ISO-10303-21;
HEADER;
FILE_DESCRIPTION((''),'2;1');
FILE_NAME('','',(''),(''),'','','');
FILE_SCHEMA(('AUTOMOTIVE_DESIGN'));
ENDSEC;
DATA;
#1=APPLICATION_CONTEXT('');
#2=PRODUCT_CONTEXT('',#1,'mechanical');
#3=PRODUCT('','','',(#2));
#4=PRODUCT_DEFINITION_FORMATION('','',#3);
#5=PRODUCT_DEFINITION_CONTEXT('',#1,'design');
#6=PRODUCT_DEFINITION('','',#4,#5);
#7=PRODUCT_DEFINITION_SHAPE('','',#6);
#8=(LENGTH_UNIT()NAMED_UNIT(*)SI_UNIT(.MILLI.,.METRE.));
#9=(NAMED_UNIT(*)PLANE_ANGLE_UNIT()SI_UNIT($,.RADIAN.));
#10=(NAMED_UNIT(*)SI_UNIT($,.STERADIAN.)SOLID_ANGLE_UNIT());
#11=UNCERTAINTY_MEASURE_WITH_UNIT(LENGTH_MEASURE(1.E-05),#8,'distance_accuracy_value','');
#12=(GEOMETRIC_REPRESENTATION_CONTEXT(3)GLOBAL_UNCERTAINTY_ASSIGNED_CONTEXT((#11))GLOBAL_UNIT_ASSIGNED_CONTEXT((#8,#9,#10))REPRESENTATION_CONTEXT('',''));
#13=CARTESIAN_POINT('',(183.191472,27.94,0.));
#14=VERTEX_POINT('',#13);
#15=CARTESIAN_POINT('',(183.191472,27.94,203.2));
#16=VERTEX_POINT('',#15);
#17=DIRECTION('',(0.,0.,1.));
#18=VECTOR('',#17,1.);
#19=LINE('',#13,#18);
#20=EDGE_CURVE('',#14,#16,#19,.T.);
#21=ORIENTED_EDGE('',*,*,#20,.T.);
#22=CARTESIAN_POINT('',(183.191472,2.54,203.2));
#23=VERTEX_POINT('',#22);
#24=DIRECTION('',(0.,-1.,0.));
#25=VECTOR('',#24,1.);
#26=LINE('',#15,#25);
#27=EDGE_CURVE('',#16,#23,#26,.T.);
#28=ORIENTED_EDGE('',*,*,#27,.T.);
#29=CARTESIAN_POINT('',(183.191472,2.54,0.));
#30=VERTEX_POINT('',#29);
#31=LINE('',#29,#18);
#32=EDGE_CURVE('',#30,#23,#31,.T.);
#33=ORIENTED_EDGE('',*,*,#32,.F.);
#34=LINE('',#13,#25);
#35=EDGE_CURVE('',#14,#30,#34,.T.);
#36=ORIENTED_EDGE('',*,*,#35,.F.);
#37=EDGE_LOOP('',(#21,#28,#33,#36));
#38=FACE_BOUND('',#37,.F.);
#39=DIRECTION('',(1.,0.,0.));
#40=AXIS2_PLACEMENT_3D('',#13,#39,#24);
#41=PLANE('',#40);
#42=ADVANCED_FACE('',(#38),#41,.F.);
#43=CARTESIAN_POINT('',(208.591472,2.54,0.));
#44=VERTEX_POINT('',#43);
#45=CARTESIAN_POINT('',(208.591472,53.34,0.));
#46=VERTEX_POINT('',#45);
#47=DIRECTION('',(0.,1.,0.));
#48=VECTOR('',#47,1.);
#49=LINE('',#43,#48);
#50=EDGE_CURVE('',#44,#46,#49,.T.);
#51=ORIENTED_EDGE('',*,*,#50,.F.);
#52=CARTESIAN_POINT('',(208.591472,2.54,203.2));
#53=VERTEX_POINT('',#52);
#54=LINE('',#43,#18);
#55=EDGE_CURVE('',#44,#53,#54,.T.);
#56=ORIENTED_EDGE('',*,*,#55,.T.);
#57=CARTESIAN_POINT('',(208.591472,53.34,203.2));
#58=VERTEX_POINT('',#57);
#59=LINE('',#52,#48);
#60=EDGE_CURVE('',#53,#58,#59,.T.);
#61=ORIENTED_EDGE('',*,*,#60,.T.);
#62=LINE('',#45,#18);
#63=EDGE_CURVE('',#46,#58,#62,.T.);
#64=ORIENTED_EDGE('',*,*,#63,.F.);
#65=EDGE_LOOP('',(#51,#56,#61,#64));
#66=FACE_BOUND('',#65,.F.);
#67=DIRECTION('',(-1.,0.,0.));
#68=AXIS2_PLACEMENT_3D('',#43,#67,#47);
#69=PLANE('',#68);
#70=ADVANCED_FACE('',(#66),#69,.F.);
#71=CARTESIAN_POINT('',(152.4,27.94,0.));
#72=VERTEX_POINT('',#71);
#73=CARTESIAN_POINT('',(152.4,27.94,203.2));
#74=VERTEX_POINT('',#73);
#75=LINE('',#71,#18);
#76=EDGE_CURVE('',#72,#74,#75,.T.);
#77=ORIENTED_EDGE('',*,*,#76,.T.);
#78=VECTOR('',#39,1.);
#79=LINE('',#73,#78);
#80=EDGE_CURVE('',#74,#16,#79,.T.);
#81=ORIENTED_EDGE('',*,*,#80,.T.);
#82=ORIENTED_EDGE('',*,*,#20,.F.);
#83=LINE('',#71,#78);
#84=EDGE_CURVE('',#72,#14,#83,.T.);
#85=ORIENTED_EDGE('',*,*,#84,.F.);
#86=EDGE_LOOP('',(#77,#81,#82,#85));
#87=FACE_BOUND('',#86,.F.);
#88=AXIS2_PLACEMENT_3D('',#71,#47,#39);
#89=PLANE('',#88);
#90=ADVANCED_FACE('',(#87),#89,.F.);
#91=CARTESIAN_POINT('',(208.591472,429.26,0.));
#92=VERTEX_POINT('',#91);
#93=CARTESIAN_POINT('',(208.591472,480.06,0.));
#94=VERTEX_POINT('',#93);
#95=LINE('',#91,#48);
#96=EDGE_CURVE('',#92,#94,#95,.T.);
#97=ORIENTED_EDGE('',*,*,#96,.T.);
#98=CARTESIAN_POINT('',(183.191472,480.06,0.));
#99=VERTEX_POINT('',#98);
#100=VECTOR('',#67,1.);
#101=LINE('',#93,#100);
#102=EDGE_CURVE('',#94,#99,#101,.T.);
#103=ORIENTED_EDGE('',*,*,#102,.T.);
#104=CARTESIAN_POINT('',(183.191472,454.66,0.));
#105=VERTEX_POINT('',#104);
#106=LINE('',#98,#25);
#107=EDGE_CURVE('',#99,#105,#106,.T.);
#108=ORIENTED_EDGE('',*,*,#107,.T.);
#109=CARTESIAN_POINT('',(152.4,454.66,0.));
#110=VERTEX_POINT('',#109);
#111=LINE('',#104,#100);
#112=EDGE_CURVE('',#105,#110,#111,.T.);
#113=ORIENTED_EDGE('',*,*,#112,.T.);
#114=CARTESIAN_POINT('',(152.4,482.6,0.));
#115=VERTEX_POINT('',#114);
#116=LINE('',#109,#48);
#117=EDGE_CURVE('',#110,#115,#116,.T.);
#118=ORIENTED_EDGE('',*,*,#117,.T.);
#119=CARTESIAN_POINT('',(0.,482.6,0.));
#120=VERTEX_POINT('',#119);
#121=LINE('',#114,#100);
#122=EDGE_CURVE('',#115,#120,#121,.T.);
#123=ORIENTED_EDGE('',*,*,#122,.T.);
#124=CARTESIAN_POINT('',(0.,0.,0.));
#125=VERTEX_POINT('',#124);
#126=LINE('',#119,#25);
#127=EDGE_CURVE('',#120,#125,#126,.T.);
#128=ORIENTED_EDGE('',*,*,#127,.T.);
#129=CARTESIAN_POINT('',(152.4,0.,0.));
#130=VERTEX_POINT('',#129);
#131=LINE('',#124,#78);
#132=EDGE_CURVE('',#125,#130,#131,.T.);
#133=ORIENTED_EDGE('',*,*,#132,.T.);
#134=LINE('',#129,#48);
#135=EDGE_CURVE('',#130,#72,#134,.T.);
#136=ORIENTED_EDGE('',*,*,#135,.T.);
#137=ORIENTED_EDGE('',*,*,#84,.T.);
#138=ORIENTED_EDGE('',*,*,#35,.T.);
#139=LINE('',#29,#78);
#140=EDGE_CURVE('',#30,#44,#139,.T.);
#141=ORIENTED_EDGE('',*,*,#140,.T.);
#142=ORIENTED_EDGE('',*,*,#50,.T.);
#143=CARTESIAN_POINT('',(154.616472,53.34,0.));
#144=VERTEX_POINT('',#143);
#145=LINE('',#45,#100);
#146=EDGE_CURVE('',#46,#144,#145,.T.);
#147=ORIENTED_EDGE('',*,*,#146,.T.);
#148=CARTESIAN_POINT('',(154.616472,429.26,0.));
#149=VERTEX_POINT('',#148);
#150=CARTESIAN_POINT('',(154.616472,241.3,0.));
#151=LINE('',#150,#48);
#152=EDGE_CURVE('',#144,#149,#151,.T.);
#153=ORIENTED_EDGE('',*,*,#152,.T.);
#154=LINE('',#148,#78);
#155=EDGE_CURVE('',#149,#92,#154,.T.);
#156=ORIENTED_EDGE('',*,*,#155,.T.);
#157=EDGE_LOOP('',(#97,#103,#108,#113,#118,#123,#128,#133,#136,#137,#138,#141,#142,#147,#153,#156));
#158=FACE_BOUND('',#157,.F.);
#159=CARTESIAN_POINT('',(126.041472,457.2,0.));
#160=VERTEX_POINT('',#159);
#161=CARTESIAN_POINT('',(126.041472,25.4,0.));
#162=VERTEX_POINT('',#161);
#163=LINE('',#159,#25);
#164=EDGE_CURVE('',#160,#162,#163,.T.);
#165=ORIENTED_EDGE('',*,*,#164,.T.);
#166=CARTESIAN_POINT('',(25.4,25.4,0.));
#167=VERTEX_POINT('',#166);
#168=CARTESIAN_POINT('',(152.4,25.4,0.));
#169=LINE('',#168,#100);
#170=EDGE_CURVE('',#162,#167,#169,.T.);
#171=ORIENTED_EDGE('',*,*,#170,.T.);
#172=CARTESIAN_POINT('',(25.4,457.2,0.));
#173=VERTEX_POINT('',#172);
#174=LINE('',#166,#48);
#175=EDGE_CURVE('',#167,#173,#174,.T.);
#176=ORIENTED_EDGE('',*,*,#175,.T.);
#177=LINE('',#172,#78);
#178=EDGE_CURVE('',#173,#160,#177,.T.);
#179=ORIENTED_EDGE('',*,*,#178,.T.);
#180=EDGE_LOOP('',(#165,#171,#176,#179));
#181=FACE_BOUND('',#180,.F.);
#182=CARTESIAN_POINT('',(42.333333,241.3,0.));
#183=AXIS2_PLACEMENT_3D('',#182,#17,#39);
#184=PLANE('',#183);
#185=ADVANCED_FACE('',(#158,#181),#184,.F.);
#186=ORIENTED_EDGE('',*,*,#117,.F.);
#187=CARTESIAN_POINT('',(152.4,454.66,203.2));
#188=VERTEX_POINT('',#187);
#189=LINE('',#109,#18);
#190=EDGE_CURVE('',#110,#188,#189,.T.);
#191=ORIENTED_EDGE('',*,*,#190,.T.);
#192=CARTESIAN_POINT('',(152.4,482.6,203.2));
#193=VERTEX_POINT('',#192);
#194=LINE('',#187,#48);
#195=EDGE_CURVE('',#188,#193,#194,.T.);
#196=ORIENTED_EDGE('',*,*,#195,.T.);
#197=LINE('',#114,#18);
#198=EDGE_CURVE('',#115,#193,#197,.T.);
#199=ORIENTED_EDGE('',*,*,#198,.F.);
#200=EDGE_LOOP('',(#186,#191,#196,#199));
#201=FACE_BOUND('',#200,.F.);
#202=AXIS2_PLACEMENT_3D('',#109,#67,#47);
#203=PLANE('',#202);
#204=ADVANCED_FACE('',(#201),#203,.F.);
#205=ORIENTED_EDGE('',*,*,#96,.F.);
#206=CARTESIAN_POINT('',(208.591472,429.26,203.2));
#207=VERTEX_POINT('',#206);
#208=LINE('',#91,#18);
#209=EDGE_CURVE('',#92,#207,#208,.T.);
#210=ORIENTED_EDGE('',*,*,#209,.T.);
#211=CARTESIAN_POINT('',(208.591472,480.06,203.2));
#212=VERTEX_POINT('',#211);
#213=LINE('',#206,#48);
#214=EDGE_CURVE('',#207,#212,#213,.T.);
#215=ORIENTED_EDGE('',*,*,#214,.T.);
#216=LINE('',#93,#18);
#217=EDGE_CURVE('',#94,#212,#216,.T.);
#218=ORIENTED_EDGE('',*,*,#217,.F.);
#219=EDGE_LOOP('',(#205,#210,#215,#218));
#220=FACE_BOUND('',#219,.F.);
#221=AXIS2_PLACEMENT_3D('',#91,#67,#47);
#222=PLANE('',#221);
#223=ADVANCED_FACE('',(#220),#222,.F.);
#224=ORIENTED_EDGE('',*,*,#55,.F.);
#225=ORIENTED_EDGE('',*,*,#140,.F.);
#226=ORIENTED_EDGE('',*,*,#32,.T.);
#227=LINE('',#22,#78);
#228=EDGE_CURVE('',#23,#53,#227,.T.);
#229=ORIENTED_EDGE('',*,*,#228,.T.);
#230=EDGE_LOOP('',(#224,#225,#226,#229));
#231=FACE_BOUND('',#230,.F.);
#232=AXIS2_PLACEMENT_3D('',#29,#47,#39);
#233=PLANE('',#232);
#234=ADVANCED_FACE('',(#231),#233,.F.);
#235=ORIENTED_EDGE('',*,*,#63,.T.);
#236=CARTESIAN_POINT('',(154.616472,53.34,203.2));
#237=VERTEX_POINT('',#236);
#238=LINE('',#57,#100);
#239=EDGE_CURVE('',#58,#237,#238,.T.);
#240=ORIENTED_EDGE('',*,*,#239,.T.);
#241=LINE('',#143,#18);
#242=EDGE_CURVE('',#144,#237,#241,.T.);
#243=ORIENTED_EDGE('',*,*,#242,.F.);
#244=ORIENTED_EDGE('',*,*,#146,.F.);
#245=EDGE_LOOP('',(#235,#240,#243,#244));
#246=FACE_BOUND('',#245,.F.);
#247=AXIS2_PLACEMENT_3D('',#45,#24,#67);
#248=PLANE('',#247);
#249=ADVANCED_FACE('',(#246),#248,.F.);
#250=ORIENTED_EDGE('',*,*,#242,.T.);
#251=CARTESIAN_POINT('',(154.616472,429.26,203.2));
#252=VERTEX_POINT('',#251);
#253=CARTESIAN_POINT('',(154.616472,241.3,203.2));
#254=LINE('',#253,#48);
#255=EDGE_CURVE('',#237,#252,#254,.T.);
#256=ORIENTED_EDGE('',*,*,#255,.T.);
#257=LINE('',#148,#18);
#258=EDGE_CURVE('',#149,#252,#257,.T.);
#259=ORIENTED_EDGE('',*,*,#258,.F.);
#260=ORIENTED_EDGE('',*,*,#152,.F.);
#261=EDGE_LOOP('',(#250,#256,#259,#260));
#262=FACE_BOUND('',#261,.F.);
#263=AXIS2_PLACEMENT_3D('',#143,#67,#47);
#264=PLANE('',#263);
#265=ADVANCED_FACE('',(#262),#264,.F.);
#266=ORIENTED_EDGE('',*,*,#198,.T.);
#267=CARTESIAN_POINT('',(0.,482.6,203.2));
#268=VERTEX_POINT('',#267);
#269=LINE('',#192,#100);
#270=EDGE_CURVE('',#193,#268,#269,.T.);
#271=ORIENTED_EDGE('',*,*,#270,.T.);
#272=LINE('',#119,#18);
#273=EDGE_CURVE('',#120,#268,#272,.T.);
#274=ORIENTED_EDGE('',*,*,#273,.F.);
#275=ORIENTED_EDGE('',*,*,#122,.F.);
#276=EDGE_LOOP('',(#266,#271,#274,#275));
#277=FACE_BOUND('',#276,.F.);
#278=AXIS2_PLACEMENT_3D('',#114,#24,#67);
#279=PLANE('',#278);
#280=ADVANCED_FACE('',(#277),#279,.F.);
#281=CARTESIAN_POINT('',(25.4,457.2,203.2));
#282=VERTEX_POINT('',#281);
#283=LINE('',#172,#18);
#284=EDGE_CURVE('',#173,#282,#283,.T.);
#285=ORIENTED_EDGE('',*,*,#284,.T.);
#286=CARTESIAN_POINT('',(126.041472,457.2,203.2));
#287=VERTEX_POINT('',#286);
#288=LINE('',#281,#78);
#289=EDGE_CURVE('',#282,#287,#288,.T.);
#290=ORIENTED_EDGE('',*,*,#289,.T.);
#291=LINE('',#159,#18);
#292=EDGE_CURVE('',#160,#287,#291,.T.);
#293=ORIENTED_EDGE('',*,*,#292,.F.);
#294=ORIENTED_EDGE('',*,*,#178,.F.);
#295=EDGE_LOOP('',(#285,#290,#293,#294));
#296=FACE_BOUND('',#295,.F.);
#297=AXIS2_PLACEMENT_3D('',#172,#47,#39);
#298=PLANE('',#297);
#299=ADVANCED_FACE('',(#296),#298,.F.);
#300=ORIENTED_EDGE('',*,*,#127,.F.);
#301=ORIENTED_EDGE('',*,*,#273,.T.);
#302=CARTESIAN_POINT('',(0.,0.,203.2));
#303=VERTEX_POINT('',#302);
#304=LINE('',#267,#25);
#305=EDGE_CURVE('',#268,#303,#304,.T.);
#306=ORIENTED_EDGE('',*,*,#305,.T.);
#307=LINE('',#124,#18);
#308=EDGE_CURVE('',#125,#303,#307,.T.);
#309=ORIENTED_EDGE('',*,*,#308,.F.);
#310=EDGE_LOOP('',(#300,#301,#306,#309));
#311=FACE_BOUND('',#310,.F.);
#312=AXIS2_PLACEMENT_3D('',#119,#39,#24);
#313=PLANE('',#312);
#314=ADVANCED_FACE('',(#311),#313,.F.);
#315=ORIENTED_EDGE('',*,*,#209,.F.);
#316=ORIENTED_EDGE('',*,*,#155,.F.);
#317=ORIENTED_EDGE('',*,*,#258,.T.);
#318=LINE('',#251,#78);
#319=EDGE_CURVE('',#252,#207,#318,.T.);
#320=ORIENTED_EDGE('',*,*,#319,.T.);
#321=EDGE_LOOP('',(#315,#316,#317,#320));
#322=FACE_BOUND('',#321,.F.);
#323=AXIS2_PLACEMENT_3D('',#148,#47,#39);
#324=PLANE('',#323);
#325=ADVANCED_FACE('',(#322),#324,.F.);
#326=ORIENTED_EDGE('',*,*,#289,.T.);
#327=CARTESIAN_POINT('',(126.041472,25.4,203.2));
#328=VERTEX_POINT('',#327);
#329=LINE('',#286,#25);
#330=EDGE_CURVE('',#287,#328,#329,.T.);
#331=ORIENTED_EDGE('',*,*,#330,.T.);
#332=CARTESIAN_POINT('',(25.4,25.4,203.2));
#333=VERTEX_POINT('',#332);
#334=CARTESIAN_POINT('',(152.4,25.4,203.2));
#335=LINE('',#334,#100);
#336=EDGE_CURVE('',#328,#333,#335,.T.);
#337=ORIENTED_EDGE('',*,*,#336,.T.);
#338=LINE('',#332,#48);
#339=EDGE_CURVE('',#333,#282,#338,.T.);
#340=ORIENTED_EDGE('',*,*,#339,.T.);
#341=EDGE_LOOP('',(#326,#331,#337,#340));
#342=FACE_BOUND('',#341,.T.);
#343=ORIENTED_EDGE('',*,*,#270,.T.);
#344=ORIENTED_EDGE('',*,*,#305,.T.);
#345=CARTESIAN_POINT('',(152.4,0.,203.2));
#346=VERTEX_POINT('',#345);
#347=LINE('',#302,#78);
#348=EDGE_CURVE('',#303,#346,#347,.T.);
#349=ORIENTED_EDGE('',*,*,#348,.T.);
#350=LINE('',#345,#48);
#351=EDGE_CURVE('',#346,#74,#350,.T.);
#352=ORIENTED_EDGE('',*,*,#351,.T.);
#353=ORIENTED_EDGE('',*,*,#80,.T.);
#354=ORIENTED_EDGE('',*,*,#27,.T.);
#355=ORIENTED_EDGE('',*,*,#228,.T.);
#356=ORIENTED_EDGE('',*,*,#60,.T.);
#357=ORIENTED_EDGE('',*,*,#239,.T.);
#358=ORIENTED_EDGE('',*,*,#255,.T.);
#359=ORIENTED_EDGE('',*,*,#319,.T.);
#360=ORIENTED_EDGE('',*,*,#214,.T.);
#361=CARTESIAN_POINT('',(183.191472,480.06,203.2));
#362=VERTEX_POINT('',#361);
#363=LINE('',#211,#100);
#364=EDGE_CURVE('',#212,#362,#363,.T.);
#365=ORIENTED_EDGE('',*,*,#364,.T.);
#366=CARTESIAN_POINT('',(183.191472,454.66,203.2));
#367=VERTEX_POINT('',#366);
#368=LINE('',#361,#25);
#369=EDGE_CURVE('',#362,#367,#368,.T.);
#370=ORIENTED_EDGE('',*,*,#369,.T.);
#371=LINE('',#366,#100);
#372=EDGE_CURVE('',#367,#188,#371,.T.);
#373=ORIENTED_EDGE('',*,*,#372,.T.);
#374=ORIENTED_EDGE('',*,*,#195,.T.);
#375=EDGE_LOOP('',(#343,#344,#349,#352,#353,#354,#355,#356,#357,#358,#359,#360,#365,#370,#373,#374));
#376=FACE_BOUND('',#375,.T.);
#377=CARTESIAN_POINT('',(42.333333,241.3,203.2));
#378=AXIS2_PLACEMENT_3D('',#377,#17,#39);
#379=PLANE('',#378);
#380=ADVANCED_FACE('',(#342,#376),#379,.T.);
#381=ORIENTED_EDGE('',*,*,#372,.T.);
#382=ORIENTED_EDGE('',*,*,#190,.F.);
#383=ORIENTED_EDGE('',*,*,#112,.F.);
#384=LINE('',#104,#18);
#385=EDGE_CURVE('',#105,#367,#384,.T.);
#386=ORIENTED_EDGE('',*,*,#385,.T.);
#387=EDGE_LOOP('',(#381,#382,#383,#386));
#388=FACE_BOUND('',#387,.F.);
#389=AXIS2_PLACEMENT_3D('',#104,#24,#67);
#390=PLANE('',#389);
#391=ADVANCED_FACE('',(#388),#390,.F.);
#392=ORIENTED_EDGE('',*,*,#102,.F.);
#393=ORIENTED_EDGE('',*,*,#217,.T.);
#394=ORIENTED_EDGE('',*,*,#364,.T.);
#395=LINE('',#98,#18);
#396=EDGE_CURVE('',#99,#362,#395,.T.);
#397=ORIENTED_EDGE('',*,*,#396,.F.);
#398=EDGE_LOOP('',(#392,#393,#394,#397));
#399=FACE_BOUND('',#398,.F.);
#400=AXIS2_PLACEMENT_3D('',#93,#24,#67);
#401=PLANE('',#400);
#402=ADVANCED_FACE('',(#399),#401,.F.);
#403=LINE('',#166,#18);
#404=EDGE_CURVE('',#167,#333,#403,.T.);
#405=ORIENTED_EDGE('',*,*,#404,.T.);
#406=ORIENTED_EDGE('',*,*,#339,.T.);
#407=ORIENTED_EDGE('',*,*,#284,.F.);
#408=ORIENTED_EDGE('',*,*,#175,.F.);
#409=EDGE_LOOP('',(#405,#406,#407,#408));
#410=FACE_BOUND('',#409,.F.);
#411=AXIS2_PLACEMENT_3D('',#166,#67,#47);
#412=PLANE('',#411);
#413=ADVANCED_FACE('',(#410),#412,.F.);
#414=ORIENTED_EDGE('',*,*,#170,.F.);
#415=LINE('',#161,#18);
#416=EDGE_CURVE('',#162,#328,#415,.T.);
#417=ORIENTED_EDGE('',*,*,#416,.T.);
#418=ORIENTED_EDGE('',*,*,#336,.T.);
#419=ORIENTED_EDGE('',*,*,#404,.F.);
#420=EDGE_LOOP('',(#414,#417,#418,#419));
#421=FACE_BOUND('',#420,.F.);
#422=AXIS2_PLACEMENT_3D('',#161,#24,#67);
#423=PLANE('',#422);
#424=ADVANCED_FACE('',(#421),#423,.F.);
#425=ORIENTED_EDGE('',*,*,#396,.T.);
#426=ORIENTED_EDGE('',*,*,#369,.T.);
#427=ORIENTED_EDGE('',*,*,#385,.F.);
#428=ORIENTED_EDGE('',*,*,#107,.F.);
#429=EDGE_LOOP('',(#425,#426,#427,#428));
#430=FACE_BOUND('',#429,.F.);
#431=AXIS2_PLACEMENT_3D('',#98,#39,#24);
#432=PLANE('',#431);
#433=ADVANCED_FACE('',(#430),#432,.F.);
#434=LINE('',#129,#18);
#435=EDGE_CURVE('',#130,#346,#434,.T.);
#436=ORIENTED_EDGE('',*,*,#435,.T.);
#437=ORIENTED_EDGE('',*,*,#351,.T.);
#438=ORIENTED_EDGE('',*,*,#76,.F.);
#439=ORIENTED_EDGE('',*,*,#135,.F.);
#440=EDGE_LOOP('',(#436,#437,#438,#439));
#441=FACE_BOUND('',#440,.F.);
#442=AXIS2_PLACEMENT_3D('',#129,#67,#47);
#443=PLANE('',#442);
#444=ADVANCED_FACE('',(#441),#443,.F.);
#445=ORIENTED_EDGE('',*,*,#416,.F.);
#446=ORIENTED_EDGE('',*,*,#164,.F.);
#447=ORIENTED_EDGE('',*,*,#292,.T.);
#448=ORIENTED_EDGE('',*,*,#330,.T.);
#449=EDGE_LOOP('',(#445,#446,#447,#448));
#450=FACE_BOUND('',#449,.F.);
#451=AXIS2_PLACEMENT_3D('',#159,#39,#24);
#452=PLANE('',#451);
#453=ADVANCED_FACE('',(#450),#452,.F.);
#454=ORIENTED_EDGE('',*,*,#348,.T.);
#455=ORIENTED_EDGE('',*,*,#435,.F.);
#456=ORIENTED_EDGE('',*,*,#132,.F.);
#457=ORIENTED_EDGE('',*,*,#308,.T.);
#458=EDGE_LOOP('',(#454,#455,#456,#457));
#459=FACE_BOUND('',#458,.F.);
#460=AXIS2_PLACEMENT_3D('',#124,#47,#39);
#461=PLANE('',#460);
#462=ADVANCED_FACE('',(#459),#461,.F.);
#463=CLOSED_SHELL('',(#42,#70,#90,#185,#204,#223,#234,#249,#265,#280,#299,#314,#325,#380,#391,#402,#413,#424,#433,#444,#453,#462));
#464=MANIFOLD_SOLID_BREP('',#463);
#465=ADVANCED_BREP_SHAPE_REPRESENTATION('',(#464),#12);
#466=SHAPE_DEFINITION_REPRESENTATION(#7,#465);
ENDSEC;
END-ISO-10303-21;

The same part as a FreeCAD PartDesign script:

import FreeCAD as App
import Part
import Sketcher
from FreeCAD import Vector
Q = App.Units.Quantity

doc = App.newDocument("Part")
body = doc.addObject("PartDesign::Body", "Body")

sketch1 = body.newObject("Sketcher::SketchObject", "Sketch")
sketch1.AttachmentSupport = (doc.getObject("XY_Plane"), [""])
sketch1.MapMode = "FlatFace"
sketch1.addGeometry([
    Part.LineSegment(Vector(0, 483, 0), Vector(0, 0, 0)),
    Part.LineSegment(Vector(0, 0, 0), Vector(152, 0, 0)),
    Part.LineSegment(Vector(152, 0, 0), Vector(152, 28, 0)),
    Part.LineSegment(Vector(152, 28, 0), Vector(183, 28, 0)),
    Part.LineSegment(Vector(183, 28, 0), Vector(183, 3, 0)),
    Part.LineSegment(Vector(183, 3, 0), Vector(209, 3, 0)),
    Part.LineSegment(Vector(209, 3, 0), Vector(209, 53, 0)),
    Part.LineSegment(Vector(209, 53, 0), Vector(155, 53, 0)),
    Part.LineSegment(Vector(155, 53, 0), Vector(155, 429, 0)),
    Part.LineSegment(Vector(155, 429, 0), Vector(209, 429, 0)),
    Part.LineSegment(Vector(209, 429, 0), Vector(209, 480, 0)),
    Part.LineSegment(Vector(209, 480, 0), Vector(183, 480, 0)),
    Part.LineSegment(Vector(183, 480, 0), Vector(183, 455, 0)),
    Part.LineSegment(Vector(183, 455, 0), Vector(152, 455, 0)),
    Part.LineSegment(Vector(152, 455, 0), Vector(152, 483, 0)),
    Part.LineSegment(Vector(152, 483, 0), Vector(0, 483, 0)),
    Part.LineSegment(Vector(126, 25, 0), Vector(25, 25, 0)),
    Part.LineSegment(Vector(25, 25, 0), Vector(25, 457, 0)),
    Part.LineSegment(Vector(25, 457, 0), Vector(126, 457, 0)),
    Part.LineSegment(Vector(126, 457, 0), Vector(126, 25, 0)),
], False)
sketch1.addConstraint([
    Sketcher.Constraint("Coincident", 0, 2, 1, 1),
    Sketcher.Constraint("Coincident", 1, 2, 2, 1),
    Sketcher.Constraint("Coincident", 2, 2, 3, 1),
    Sketcher.Constraint("Coincident", 3, 2, 4, 1),
    Sketcher.Constraint("Coincident", 4, 2, 5, 1),
    Sketcher.Constraint("Coincident", 5, 2, 6, 1),
    Sketcher.Constraint("Coincident", 6, 2, 7, 1),
    Sketcher.Constraint("Coincident", 7, 2, 8, 1),
    Sketcher.Constraint("Coincident", 8, 2, 9, 1),
    Sketcher.Constraint("Coincident", 9, 2, 10, 1),
    Sketcher.Constraint("Coincident", 10, 2, 11, 1),
    Sketcher.Constraint("Coincident", 11, 2, 12, 1),
    Sketcher.Constraint("Coincident", 12, 2, 13, 1),
    Sketcher.Constraint("Coincident", 13, 2, 14, 1),
    Sketcher.Constraint("Coincident", 14, 2, 15, 1),
    Sketcher.Constraint("Coincident", 15, 2, 0, 1),
    Sketcher.Constraint("Coincident", 16, 2, 17, 1),
    Sketcher.Constraint("Coincident", 17, 2, 18, 1),
    Sketcher.Constraint("Coincident", 18, 2, 19, 1),
    Sketcher.Constraint("Coincident", 19, 2, 16, 1),
    Sketcher.Constraint("Vertical", 0),
    Sketcher.Constraint("Horizontal", 1),
    Sketcher.Constraint("Vertical", 2),
    Sketcher.Constraint("Horizontal", 3),
    Sketcher.Constraint("Vertical", 4),
    Sketcher.Constraint("Horizontal", 5),
    Sketcher.Constraint("Vertical", 6),
    Sketcher.Constraint("Horizontal", 7),
    Sketcher.Constraint("Vertical", 8),
    Sketcher.Constraint("Horizontal", 9),
    Sketcher.Constraint("Vertical", 10),
    Sketcher.Constraint("Horizontal", 11),
    Sketcher.Constraint("Vertical", 12),
    Sketcher.Constraint("Horizontal", 13),
    Sketcher.Constraint("Vertical", 14),
    Sketcher.Constraint("Horizontal", 15),
    Sketcher.Constraint("Horizontal", 16),
    Sketcher.Constraint("Vertical", 17),
    Sketcher.Constraint("Horizontal", 18),
    Sketcher.Constraint("Vertical", 19),
    Sketcher.Constraint("Coincident", 0, 2, -1, 1),
    Sketcher.Constraint("Vertical", 6, 2, 9, 2),
    Sketcher.Constraint("Vertical", 4, 2, 11, 2),
    Sketcher.Constraint("Vertical", 2, 2, 13, 2),
    Sketcher.Constraint("Equal", 11, 4),
    Sketcher.Constraint("Equal", 6, 10),
    Sketcher.Constraint("Equal", 4, 12),
    Sketcher.Constraint("Equal", 2, 14),
    Sketcher.Constraint("DistanceX", 1, 1, 1, 2, Q("6 in")),
    Sketcher.Constraint("DistanceX", 5, 1, 5, 2, Q("1 in")),
    Sketcher.Constraint("DistanceY", 0, 2, 0, 1, Q("19 in")),
    Sketcher.Constraint("DistanceY", 6, 1, 6, 2, Q("2 in")),
    Sketcher.Constraint("DistanceY", 17, 1, 17, 2, Q("17 in")),
    Sketcher.Constraint("DistanceY", 2, 1, 2, 2, Q("1.1 in")),
    Sketcher.Constraint("DistanceX", -1, 1, 16, 2, Q("1 in")),
    Sketcher.Constraint("DistanceY", -1, 1, 16, 2, Q("1 in")),
    Sketcher.Constraint("DistanceX", 7, 2, 7, 1, Q("2.125 in")),
    Sketcher.Constraint("DistanceX", 18, 2, 12, 2, Q("2.25 in")),
    Sketcher.Constraint("DistanceX", 3, 1, 3, 2, 30.791472),
])
pad1 = body.newObject("PartDesign::Pad", "Pad")
pad1.Profile = sketch1
pad1.Length = Q("8 in")

doc.recompute()
